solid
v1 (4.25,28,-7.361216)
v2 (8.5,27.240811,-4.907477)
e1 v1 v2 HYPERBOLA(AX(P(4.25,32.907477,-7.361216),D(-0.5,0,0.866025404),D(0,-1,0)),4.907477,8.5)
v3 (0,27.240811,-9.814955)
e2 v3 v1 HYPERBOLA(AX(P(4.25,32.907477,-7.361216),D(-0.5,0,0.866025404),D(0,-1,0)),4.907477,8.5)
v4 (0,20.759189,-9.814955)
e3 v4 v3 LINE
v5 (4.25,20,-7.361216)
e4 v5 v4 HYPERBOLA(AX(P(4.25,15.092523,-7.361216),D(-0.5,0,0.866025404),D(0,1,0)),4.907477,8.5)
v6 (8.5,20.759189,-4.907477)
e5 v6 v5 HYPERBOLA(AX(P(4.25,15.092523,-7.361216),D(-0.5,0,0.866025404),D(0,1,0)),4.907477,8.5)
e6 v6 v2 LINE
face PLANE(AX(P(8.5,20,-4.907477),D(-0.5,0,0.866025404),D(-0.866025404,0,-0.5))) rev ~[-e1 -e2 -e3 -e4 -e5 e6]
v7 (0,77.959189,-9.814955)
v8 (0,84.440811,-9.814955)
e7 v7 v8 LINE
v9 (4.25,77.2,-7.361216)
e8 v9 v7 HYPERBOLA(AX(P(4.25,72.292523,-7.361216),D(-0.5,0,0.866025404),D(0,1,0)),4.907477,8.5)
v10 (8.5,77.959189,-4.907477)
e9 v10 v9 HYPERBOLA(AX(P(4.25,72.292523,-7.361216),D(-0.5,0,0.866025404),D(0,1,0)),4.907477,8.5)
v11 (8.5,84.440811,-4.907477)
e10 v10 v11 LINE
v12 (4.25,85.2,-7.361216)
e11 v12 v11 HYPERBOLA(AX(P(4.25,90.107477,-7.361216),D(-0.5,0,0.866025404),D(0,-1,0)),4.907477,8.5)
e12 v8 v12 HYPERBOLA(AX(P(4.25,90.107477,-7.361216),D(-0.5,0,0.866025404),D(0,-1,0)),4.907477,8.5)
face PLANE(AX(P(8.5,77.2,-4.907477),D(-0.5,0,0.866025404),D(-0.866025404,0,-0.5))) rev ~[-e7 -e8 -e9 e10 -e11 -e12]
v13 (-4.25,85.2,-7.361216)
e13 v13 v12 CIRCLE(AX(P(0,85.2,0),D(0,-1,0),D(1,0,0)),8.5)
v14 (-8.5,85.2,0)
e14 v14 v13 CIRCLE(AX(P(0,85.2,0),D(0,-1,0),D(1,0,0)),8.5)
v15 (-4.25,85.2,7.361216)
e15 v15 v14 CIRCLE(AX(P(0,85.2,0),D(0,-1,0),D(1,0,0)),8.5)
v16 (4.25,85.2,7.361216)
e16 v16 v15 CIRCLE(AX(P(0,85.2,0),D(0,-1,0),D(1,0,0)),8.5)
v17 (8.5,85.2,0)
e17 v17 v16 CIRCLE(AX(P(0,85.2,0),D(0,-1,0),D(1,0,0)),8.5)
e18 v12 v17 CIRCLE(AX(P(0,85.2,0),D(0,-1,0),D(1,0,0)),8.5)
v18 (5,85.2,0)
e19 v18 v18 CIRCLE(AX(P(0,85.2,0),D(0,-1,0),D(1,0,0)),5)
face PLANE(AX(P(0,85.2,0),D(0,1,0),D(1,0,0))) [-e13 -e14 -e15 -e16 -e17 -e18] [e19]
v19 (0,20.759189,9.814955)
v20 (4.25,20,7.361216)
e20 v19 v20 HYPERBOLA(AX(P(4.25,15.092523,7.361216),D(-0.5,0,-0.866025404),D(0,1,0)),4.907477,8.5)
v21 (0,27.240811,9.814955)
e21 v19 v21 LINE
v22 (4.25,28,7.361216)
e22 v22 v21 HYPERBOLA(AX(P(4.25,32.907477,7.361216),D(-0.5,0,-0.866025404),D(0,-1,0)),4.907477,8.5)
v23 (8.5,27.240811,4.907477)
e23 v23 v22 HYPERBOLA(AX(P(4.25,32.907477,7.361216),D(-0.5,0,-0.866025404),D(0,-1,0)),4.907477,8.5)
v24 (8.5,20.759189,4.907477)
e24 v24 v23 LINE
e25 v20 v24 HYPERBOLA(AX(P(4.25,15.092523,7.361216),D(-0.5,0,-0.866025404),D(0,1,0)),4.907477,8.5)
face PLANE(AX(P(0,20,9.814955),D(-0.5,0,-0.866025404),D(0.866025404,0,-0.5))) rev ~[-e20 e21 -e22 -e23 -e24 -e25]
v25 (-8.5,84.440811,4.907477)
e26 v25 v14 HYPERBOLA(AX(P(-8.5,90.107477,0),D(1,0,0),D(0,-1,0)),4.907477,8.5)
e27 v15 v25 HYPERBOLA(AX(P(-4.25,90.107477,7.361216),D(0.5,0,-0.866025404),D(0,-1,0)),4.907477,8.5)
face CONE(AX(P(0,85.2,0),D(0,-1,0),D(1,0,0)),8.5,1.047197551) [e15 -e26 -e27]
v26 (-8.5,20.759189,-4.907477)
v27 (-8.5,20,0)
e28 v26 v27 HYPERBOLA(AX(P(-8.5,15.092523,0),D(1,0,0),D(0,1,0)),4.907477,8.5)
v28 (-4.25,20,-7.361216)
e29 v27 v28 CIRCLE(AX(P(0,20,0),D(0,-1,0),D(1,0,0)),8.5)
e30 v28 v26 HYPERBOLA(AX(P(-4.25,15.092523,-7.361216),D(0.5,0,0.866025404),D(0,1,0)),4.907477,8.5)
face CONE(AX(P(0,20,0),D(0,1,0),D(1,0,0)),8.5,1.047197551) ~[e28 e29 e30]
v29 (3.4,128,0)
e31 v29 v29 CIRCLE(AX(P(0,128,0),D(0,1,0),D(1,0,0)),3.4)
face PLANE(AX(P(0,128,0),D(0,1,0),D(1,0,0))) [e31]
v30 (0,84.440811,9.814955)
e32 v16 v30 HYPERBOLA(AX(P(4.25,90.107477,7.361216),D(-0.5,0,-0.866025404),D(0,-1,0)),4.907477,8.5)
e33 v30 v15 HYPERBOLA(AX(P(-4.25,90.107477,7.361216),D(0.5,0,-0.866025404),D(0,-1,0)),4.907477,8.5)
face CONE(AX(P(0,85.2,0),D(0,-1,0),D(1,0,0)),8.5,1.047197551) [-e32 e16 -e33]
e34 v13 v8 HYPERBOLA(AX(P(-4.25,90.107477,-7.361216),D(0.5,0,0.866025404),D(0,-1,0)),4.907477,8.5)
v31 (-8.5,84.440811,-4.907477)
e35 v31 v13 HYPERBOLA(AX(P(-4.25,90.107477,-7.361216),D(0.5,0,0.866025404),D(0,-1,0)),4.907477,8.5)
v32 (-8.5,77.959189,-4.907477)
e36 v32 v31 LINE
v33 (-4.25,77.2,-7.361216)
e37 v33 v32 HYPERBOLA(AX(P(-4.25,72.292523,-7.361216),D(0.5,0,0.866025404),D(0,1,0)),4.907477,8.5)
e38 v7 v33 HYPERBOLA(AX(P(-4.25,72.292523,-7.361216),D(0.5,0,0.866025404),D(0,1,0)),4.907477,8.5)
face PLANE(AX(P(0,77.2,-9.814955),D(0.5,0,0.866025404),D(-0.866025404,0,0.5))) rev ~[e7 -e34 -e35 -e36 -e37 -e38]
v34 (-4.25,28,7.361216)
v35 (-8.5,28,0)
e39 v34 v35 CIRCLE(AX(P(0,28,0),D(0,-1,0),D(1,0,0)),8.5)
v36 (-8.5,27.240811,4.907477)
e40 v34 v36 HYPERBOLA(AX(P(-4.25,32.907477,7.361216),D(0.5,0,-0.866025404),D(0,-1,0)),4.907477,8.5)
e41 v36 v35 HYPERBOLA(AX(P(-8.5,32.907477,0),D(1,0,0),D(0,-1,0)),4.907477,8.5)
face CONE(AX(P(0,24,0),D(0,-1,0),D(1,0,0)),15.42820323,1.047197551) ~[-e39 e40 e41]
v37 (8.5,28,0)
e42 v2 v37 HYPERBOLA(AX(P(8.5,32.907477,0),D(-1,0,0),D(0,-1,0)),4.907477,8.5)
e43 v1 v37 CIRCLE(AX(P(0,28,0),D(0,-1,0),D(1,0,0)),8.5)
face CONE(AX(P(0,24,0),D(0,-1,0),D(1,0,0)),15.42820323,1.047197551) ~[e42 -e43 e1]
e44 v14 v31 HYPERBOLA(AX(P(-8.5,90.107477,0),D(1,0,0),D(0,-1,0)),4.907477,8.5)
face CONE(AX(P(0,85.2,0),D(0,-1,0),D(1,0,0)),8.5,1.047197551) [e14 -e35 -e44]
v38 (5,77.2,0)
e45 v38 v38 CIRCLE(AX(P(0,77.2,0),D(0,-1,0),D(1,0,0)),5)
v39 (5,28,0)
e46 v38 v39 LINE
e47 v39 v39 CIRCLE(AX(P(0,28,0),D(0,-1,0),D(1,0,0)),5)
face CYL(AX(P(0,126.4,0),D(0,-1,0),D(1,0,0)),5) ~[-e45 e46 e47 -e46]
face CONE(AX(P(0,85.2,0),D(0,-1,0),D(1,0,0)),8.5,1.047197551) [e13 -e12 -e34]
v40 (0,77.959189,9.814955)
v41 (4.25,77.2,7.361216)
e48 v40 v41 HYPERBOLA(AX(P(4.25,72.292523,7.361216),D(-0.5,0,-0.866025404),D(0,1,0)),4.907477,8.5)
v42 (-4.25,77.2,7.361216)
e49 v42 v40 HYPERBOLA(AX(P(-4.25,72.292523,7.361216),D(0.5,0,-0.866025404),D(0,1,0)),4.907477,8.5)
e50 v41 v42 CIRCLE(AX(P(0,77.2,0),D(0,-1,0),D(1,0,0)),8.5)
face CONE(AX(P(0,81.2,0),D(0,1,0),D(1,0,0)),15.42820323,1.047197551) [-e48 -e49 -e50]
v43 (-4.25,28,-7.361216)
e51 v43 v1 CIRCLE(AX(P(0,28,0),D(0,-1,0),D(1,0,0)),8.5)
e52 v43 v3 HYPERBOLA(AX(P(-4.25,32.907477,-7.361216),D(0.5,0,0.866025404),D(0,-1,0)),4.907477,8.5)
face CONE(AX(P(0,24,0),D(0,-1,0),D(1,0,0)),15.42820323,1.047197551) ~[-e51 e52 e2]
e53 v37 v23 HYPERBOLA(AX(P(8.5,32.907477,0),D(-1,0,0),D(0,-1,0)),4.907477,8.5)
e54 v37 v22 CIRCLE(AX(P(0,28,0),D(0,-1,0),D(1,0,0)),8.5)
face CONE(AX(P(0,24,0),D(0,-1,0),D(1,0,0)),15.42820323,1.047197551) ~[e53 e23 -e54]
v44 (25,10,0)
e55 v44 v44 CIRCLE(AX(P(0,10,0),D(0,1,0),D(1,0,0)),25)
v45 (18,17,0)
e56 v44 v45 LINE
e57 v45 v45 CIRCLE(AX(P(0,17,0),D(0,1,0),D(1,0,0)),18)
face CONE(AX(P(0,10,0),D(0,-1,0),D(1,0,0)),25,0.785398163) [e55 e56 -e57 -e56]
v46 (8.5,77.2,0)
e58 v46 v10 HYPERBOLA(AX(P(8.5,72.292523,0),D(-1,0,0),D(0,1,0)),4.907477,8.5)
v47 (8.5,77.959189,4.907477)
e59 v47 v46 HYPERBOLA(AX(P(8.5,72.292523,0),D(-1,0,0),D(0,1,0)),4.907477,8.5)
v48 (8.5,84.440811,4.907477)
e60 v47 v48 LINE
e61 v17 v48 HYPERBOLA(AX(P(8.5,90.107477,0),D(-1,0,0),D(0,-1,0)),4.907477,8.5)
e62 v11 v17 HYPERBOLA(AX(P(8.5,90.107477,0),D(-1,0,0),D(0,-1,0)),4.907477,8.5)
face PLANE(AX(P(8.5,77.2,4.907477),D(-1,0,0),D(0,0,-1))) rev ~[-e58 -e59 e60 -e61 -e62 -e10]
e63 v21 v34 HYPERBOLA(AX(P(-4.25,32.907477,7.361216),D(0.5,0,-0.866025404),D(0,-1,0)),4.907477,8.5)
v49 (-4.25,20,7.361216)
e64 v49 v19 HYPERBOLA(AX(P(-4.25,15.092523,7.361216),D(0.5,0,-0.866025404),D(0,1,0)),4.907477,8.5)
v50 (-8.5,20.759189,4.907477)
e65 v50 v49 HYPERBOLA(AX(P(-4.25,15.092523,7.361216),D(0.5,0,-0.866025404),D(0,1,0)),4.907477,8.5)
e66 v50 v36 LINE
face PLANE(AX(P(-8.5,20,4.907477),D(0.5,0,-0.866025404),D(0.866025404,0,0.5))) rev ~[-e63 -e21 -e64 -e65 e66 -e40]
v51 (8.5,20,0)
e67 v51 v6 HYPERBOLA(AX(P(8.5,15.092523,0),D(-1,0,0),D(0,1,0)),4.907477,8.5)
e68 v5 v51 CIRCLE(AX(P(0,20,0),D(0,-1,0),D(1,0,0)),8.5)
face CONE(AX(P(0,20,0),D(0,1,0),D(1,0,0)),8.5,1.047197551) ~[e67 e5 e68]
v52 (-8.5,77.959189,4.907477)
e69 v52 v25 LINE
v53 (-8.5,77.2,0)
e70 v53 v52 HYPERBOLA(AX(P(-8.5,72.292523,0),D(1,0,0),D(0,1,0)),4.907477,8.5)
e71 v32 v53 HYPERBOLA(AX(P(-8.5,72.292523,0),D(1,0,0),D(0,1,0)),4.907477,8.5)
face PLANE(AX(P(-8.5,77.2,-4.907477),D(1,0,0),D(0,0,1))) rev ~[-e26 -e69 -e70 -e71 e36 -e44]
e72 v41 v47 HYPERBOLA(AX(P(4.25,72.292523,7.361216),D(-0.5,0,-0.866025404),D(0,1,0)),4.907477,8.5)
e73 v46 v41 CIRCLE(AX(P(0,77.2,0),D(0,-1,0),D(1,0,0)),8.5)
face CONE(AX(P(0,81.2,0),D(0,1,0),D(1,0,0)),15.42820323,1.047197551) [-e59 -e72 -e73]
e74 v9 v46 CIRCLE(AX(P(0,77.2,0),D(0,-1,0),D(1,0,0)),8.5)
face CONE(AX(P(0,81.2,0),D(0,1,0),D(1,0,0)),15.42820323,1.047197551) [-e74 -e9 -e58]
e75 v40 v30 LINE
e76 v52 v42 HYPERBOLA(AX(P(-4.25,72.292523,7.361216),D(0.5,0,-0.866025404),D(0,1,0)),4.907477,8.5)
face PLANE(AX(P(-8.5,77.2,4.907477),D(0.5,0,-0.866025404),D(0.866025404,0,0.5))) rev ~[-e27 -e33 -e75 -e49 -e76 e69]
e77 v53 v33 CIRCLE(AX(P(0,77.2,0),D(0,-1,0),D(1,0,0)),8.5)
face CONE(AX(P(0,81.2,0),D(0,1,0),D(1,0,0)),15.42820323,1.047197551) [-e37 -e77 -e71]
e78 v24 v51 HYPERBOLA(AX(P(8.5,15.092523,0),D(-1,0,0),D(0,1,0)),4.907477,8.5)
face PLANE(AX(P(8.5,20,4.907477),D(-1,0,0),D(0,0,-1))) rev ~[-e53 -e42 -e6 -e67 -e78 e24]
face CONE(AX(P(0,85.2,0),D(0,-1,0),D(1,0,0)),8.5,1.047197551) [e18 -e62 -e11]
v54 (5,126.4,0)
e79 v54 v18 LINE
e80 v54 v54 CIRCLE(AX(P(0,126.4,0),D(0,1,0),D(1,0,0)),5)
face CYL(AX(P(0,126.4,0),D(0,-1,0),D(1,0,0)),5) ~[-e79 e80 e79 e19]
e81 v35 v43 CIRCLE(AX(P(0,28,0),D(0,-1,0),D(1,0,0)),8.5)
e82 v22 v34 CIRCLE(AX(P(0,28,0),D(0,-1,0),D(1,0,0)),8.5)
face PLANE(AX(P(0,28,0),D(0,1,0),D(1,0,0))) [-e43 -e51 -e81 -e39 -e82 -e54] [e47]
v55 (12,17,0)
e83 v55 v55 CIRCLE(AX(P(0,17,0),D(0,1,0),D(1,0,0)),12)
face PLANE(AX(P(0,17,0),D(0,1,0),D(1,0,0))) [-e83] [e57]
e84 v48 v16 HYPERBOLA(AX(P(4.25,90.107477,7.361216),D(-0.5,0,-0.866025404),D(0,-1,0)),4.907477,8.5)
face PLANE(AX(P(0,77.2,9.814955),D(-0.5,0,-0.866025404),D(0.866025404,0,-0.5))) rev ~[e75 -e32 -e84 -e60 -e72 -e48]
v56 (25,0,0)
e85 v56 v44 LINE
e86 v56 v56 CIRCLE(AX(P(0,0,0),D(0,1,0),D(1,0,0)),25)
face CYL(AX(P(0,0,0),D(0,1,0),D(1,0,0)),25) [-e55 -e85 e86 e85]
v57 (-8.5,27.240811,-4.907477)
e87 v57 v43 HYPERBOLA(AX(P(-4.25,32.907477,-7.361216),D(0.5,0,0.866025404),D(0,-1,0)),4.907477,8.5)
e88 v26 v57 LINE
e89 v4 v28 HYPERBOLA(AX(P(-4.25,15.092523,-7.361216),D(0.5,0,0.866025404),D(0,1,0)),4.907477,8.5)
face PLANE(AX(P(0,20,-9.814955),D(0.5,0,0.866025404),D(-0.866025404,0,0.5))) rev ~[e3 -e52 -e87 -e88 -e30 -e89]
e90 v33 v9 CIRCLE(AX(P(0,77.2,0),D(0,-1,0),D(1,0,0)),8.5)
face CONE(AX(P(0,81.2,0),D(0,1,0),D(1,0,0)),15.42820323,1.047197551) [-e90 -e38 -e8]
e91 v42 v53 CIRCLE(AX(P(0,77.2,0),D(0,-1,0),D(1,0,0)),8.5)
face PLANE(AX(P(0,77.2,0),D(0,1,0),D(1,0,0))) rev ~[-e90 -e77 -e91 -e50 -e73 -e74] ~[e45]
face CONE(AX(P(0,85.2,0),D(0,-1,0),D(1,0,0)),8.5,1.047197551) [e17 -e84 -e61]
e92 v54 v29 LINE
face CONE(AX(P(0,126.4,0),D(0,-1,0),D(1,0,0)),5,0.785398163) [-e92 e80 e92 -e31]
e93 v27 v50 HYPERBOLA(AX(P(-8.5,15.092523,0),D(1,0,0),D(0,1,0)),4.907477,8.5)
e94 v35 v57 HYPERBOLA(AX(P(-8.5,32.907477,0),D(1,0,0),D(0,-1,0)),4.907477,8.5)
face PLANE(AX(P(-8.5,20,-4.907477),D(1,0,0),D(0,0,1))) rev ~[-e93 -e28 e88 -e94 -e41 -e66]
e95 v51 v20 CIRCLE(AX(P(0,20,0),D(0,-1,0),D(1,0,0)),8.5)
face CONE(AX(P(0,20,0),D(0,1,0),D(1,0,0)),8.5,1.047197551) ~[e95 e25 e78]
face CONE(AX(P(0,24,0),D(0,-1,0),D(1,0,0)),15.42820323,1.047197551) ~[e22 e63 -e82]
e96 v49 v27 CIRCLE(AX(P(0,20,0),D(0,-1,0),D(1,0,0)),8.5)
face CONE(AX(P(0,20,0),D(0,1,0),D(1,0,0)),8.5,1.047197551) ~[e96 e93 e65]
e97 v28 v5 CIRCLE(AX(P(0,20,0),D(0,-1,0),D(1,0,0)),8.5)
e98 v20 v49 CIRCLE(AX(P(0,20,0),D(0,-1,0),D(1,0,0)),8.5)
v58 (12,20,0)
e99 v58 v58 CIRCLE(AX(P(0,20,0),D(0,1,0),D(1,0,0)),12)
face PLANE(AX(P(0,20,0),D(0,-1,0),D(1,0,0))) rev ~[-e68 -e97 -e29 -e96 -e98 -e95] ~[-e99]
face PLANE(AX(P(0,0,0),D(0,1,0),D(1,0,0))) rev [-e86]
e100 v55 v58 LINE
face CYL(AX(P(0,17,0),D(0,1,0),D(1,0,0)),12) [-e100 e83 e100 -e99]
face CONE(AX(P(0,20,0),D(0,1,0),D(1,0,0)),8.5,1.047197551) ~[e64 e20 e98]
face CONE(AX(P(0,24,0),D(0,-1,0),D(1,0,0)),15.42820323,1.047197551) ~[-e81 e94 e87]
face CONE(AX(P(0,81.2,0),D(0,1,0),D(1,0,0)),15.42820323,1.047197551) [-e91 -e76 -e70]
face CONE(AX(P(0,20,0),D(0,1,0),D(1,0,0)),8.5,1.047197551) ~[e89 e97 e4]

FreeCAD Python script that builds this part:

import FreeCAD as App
import Part
import Sketcher
from FreeCAD import Vector
Q = App.Units.Quantity


def add_polygon(sketch, points):
    """Adds a closed chain of lines whose ends are joined by coincident constraints."""
    first, n = sketch.GeometryCount, len(points)
    for a, b in zip(points, points[1:] + points[:1]):
        sketch.addGeometry(Part.LineSegment(App.Vector(*a, 0), App.Vector(*b, 0)), False)
    for i in range(n):
        sketch.addConstraint(Sketcher.Constraint("Coincident", first + i, 2, first + (i + 1) % n, 1))

doc = App.newDocument("Part")
params = doc.addObject("Spreadsheet::Sheet", "Params")
for row, (alias, value) in enumerate([
    ("sketch1_width", "25 mm"),
    ("sketch1_width2", "7 mm"),
    ("sketch1_width3", "6 mm"),
    ("sketch1_height", "128 mm"),
    ("sketch1_height2", "3 mm"),
    ("revolution_angle", "360 deg"),
    ("pad1_length", "8 mm"),
    ("pad2_length", "8 mm"),
    ("sketch4_height", "4 mm"),
    ("groove_angle", "360 deg"),
], start=1):
    params.set(f"A{row}", alias)
    params.set(f"B{row}", "=" + value)
    params.setAlias(f"B{row}", alias)

body = doc.addObject("PartDesign::Body", "Body")

# Sketch on XY plane
sketch1 = body.newObject("Sketcher::SketchObject", "Sketch")
sketch1.AttachmentSupport = (doc.getObject("XY_Plane"), [""])
sketch1.MapMode = "FlatFace"
add_polygon(sketch1, [(-25, 0), (0, 0), (0, 128), (-3.4, 128), (-5, 126.4), (-5, 20), (-12, 20), (-12, 17), (-18, 17), (-25, 10)])  # lines 0-9
sketch1.addConstraint(Sketcher.Constraint("Horizontal", 0))
sketch1.addConstraint(Sketcher.Constraint("Vertical", 1))
sketch1.addConstraint(Sketcher.Constraint("Horizontal", 2))
sketch1.addConstraint(Sketcher.Constraint("Vertical", 4))
sketch1.addConstraint(Sketcher.Constraint("Horizontal", 5))
sketch1.addConstraint(Sketcher.Constraint("Vertical", 6))
sketch1.addConstraint(Sketcher.Constraint("Horizontal", 7))
sketch1.addConstraint(Sketcher.Constraint("Vertical", 9))
sketch1.addConstraint(Sketcher.Constraint("Coincident", 0, 2, -1, 1))
sketch1.addConstraint(Sketcher.Constraint("Parallel", 3, 8))
sketch1.addConstraint(Sketcher.Constraint("DistanceX", 0, 1, 0, 2, Q("25 mm")))
sketch1.addConstraint(Sketcher.Constraint("DistanceX", 5, 2, 5, 1, Q("7 mm")))
sketch1.addConstraint(Sketcher.Constraint("DistanceX", 7, 2, 7, 1, Q("6 mm")))
sketch1.addConstraint(Sketcher.Constraint("DistanceY", 1, 1, 1, 2, Q("128 mm")))
sketch1.addConstraint(Sketcher.Constraint("DistanceY", 6, 2, 6, 1, Q("3 mm")))
sketch1.addConstraint(Sketcher.Constraint("DistanceY", 9, 2, 9, 1, Q("10 mm")))
sketch1.addConstraint(Sketcher.Constraint("Angle", 3, Q("-135 deg")))
sketch1.addConstraint(Sketcher.Constraint("DistanceX", 2, 2, 2, 1, Q("3.4 mm")))
sketch1.addConstraint(Sketcher.Constraint("DistanceX", 3, 2, -1, 1, Q("5 mm")))
sketch1.setExpression("Constraints[20]", "Params.sketch1_width")
sketch1.setExpression("Constraints[21]", "Params.sketch1_width2")
sketch1.setExpression("Constraints[22]", "Params.sketch1_width3")
sketch1.setExpression("Constraints[23]", "Params.sketch1_height")
sketch1.setExpression("Constraints[24]", "Params.sketch1_height2")
revolution = body.newObject("PartDesign::Revolution", "Revolution")
revolution.Profile = sketch1
revolution.ReferenceAxis = (sketch1, ["V_Axis"])
revolution.setExpression("Angle", "Params.revolution_angle")

# Sketch on XZ plane
sketch2 = body.newObject("Sketcher::SketchObject", "Sketch001")
sketch2.AttachmentSupport = (doc.getObject("XZ_Plane"), [""])
sketch2.MapMode = "FlatFace"
sketch2.AttachmentOffset = App.Placement(Vector(0, 0, -20), App.Rotation())
add_polygon(sketch2, [(0, -9.814955), (-8.5, -4.907477), (-8.5, 4.907477), (0, 9.814955), (8.5, 4.907477), (8.5, -4.907477)])  # lines 0-5
sketch2.addConstraint(Sketcher.Constraint("Vertical", 1))
sketch2.addConstraint(Sketcher.Constraint("Vertical", 4))
sketch2.addConstraint(Sketcher.Constraint("Symmetric", 0, 2, 3, 2, -1, 1))
sketch2.addConstraint(Sketcher.Constraint("Symmetric", 2, 2, 5, 2, -1, 1))
sketch2.addConstraint(Sketcher.Constraint("PointOnObject", 2, 2, -2))
sketch2.addConstraint(Sketcher.Constraint("Parallel", 2, 5))
sketch2.addConstraint(Sketcher.Constraint("Horizontal", 1, 2, 3, 2))
sketch2.addConstraint(Sketcher.Constraint("Angle", 0, Q("150 deg")))
sketch2.addConstraint(Sketcher.Constraint("DistanceX", 1, 2, 3, 2, Q("17 mm")))
sketch2.addConstraint(Sketcher.Constraint("DistanceY", 1, 1, 1, 2, Q("9.814955 mm")))
pad1 = body.newObject("PartDesign::Pad", "Pad")
pad1.Profile = sketch2
pad1.setExpression("Length", "Params.pad1_length")
pad1.Reversed = True

# Sketch on XZ plane
sketch3 = body.newObject("Sketcher::SketchObject", "Sketch002")
sketch3.AttachmentSupport = (doc.getObject("XZ_Plane"), [""])
sketch3.MapMode = "FlatFace"
sketch3.AttachmentOffset = App.Placement(Vector(0, 0, -77.2), App.Rotation())
add_polygon(sketch3, [(8.5, -4.907477), (0, -9.814955), (-8.5, -4.907477), (-8.5, 4.907477), (0, 9.814955), (8.5, 4.907477)])  # lines 0-5
sketch3.addConstraint(Sketcher.Constraint("Vertical", 2))
sketch3.addConstraint(Sketcher.Constraint("Vertical", 5))
sketch3.addConstraint(Sketcher.Constraint("Symmetric", 0, 2, 3, 2, -1, 1))
sketch3.addConstraint(Sketcher.Constraint("Symmetric", 1, 2, 4, 2, -1, 1))
sketch3.addConstraint(Sketcher.Constraint("PointOnObject", 0, 2, -2))
sketch3.addConstraint(Sketcher.Constraint("Parallel", 0, 3))
sketch3.addConstraint(Sketcher.Constraint("Horizontal", 2, 2, 4, 2))
sketch3.addConstraint(Sketcher.Constraint("Angle", 0, Q("-150 deg")))
sketch3.addConstraint(Sketcher.Constraint("DistanceX", 2, 2, 4, 2, Q("17 mm")))
sketch3.addConstraint(Sketcher.Constraint("DistanceY", 2, 1, 2, 2, Q("9.814955 mm")))
pad2 = body.newObject("PartDesign::Pad", "Pad001")
pad2.Profile = sketch3
pad2.setExpression("Length", "Params.pad2_length")
pad2.Reversed = True

# Sketch on XY plane
sketch4 = body.newObject("Sketcher::SketchObject", "Sketch003")
sketch4.AttachmentSupport = (doc.getObject("XY_Plane"), [""])
sketch4.MapMode = "FlatFace"
add_polygon(sketch4, [(-8.5, 85.2), (-15.428203, 85.2), (-15.428203, 81.2)])  # lines 0-2
add_polygon(sketch4, [(-15.428203, 81.2), (-15.428203, 77.2), (-8.5, 77.2)])  # lines 3-5
add_polygon(sketch4, [(-15.428203, 28), (-15.428203, 24), (-8.5, 28)])  # lines 6-8
add_polygon(sketch4, [(-15.428203, 24), (-15.428203, 20), (-8.5, 20)])  # lines 9-11
sketch4.addConstraint(Sketcher.Constraint("Horizontal", 0))
sketch4.addConstraint(Sketcher.Constraint("Vertical", 1))
sketch4.addConstraint(Sketcher.Constraint("Vertical", 3))
sketch4.addConstraint(Sketcher.Constraint("Horizontal", 4))
sketch4.addConstraint(Sketcher.Constraint("Vertical", 6))
sketch4.addConstraint(Sketcher.Constraint("Horizontal", 8))
sketch4.addConstraint(Sketcher.Constraint("Vertical", 9))
sketch4.addConstraint(Sketcher.Constraint("Horizontal", 10))
sketch4.addConstraint(Sketcher.Constraint("Coincident", 5, 2, 1, 2))
sketch4.addConstraint(Sketcher.Constraint("Coincident", 11, 2, 6, 2))
sketch4.addConstraint(Sketcher.Constraint("Parallel", 2, 7))
sketch4.addConstraint(Sketcher.Constraint("Parallel", 5, 11))
sketch4.addConstraint(Sketcher.Constraint("Vertical", 2, 2, 4, 2))
sketch4.addConstraint(Sketcher.Constraint("Vertical", 5, 2, 6, 2))
sketch4.addConstraint(Sketcher.Constraint("Vertical", 4, 2, 7, 2))
sketch4.addConstraint(Sketcher.Constraint("Vertical", 7, 2, 10, 2))
sketch4.addConstraint(Sketcher.Constraint("Equal", 1, 3))
sketch4.addConstraint(Sketcher.Constraint("DistanceY", 1, 2, 1, 1, Q("4 mm")))
sketch4.addConstraint(Sketcher.Constraint("Angle", 2, Q("30 deg")))
sketch4.addConstraint(Sketcher.Constraint("DistanceY", -1, 1, 6, 2, Q("24 mm")))
sketch4.addConstraint(Sketcher.Constraint("DistanceY", -1, 1, 0, 2, Q("85.2 mm")))
sketch4.addConstraint(Sketcher.Constraint("DistanceX", 2, 2, -1, 1, Q("8.5 mm")))
sketch4.setExpression("Constraints[29]", "Params.sketch4_height")
groove = body.newObject("PartDesign::Groove", "Groove")
groove.Profile = sketch4
groove.ReferenceAxis = (sketch4, ["V_Axis"])
groove.setExpression("Angle", "Params.groove_angle")

doc.recompute()
